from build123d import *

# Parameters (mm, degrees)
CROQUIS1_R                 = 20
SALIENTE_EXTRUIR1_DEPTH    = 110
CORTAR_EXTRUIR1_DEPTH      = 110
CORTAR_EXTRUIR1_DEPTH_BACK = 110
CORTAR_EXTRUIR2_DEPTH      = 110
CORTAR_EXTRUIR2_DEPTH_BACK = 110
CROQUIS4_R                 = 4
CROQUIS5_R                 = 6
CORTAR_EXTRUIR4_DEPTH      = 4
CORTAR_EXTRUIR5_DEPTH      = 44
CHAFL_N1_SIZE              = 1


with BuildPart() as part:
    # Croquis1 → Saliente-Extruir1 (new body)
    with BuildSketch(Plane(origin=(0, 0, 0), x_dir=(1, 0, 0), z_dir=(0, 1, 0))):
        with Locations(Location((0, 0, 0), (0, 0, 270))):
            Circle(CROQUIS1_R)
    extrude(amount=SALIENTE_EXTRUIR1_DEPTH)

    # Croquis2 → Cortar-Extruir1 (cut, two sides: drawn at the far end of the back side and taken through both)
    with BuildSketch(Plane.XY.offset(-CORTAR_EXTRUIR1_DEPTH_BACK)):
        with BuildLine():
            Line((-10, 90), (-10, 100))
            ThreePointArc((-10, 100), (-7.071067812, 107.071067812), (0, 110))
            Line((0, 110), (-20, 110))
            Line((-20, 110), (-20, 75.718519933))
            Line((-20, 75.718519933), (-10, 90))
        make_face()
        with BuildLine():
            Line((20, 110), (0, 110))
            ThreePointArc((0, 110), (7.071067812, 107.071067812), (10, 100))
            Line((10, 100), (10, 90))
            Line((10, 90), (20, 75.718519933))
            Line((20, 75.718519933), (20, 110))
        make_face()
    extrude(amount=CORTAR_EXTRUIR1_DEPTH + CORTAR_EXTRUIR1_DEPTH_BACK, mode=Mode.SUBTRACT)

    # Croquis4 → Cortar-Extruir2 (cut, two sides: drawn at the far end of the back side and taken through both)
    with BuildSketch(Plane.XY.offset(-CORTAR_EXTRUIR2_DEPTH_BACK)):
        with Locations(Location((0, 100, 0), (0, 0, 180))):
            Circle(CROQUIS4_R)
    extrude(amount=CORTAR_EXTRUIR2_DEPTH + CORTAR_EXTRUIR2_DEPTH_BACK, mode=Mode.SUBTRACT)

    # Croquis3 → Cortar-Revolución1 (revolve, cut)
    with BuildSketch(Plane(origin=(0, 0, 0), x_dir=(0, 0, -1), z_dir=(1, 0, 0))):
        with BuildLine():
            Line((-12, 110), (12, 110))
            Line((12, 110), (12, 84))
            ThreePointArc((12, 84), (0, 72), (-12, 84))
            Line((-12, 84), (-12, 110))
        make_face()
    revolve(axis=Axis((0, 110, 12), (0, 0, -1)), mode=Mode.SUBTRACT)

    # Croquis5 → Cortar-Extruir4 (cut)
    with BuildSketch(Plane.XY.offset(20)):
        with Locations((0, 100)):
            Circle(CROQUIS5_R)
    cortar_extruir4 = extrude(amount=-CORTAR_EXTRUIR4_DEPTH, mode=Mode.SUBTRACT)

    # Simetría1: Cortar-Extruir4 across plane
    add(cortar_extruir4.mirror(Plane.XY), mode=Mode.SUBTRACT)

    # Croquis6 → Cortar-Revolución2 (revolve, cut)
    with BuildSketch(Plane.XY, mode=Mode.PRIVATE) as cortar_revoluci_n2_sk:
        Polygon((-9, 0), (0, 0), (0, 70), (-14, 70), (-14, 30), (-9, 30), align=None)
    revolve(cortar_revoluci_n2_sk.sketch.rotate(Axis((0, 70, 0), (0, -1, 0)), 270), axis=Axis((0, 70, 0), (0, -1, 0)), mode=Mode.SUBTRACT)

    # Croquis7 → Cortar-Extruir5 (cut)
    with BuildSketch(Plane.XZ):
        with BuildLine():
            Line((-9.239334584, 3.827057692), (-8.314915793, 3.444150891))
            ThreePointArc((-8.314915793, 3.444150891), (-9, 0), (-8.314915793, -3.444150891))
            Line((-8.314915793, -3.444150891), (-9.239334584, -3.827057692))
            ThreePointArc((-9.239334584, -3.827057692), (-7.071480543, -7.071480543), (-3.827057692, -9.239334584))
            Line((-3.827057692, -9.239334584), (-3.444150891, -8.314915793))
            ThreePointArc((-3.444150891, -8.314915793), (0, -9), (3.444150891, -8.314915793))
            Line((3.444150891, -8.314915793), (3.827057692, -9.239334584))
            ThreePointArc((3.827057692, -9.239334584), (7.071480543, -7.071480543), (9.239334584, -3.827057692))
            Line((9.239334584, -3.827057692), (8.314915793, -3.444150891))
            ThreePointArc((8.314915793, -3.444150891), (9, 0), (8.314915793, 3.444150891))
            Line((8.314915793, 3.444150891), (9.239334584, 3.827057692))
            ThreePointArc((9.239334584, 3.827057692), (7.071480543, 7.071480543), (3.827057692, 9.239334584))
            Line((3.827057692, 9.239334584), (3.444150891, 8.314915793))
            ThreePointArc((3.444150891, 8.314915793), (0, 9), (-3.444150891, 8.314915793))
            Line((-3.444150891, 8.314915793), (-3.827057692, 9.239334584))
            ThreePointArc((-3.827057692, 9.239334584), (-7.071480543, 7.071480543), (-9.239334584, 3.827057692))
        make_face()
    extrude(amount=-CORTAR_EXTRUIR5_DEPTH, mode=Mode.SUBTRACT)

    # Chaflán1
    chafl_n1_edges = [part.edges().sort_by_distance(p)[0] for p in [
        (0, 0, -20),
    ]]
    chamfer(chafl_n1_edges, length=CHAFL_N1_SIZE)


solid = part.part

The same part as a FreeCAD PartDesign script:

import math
import FreeCAD as App
import Part
import Sketcher
Q = App.Units.Quantity


def edges_at(feature, points):
    """Names of the edges that pass closest to the given points."""
    edges = feature.Shape.Edges
    near = lambda p: min(range(len(edges)), key=lambda i: edges[i].distToShape(Part.Vertex(*p))[0])
    return sorted({f"Edge{near(p) + 1}" for p in points})


def add_polygon(sketch, points):
    """Adds a closed chain of lines whose ends are joined by coincident constraints."""
    first, n = sketch.GeometryCount, len(points)
    for a, b in zip(points, points[1:] + points[:1]):
        sketch.addGeometry(Part.LineSegment(App.Vector(*a, 0), App.Vector(*b, 0)), False)
    for i in range(n):
        sketch.addConstraint(Sketcher.Constraint("Coincident", first + i, 2, first + (i + 1) % n, 1))

doc = App.newDocument("Part")
body = doc.addObject("PartDesign::Body", "Body")

# Sketch on XZ plane
sketch1 = body.newObject("Sketcher::SketchObject", "Sketch")
sketch1.AttachmentSupport = (doc.getObject("XZ_Plane"), [""])
sketch1.MapMode = "FlatFace"
sketch1.addGeometry(Part.Circle(App.Vector(0, 0, 0), App.Vector(0, 0, 1), 20), False)
sketch1.addConstraint([
    Sketcher.Constraint("Coincident", 0, 3, -1, 1),
    Sketcher.Constraint("Diameter", 0, 40.0),
])
pad1 = body.newObject("PartDesign::Pad", "Pad")
pad1.Profile = sketch1
pad1.Length = 110
pad1.Reversed = True

# Sketch on XY plane
sketch2 = body.newObject("Sketcher::SketchObject", "Sketch001")
sketch2.AttachmentSupport = (doc.getObject("XY_Plane"), [""])
sketch2.MapMode = "FlatFace"
sketch2.addGeometry([
    Part.LineSegment(App.Vector(-10, 90, 0), App.Vector(-10, 100, 0)),  # 0
    Part.ArcOfCircle(Part.Circle(App.Vector(0, 100, 0), App.Vector(0, 0, 1), 10), math.radians(90), math.radians(180)),  # 1
    Part.LineSegment(App.Vector(0, 110, 0), App.Vector(-20, 110, 0)),  # 2
    Part.LineSegment(App.Vector(-20, 110, 0), App.Vector(-20, 76, 0)),  # 3
    Part.LineSegment(App.Vector(-20, 76, 0), App.Vector(-10, 90, 0)),  # 4
    Part.LineSegment(App.Vector(20, 110, 0), App.Vector(0, 110, 0)),  # 5
    Part.ArcOfCircle(Part.Circle(App.Vector(0, 100, 0), App.Vector(0, 0, 1), 10), math.radians(0), math.radians(90)),  # 6
    Part.LineSegment(App.Vector(10, 100, 0), App.Vector(10, 90, 0)),  # 7
    Part.LineSegment(App.Vector(10, 90, 0), App.Vector(20, 76, 0)),  # 8
    Part.LineSegment(App.Vector(20, 76, 0), App.Vector(20, 110, 0)),  # 9
], False)
sketch2.addConstraint([
    Sketcher.Constraint("Tangent", 0, 2, 1, 2),
    Sketcher.Constraint("Tangent", 1, 1, 2, 1),
    Sketcher.Constraint("Coincident", 2, 2, 3, 1),
    Sketcher.Constraint("Coincident", 3, 2, 4, 1),
    Sketcher.Constraint("Coincident", 4, 2, 0, 1),
    Sketcher.Constraint("Tangent", 5, 2, 6, 2),
    Sketcher.Constraint("Tangent", 6, 1, 7, 1),
    Sketcher.Constraint("Coincident", 7, 2, 8, 1),
    Sketcher.Constraint("Coincident", 8, 2, 9, 1),
    Sketcher.Constraint("Coincident", 9, 2, 5, 1),
    Sketcher.Constraint("Vertical", 0),
    Sketcher.Constraint("Horizontal", 2),
    Sketcher.Constraint("Vertical", 3),
    Sketcher.Constraint("Horizontal", 5),
    Sketcher.Constraint("Vertical", 7),
    Sketcher.Constraint("Vertical", 9),
    Sketcher.Constraint("Coincident", 6, 3, 1, 3),
    Sketcher.Constraint("Equal", 1, 6),
    Sketcher.Constraint("Symmetric", 4, 2, 7, 2, -2),
    Sketcher.Constraint("Symmetric", 3, 2, 8, 2, -2),
    Sketcher.Constraint("Radius", 1, 10.0),
    Sketcher.Constraint("DistanceX", 2, 2, 2, 1, 20.0),
    Sketcher.Constraint("DistanceY", 0, 1, 0, 2, 10.0),
    Sketcher.Constraint("Angle", 4, Q("55 deg")),
    Sketcher.Constraint("DistanceY", -1, 1, 1, 3, 100.0),
])
pocket1 = body.newObject("PartDesign::Pocket", "Pocket")
pocket1.Profile = sketch2
pocket1.Type = "ThroughAll"
pocket1.Midplane = True

# Sketch on XY plane
sketch3 = body.newObject("Sketcher::SketchObject", "Sketch002")
sketch3.AttachmentSupport = (doc.getObject("XY_Plane"), [""])
sketch3.MapMode = "FlatFace"
sketch3.addGeometry(Part.Circle(App.Vector(0, 100, 0), App.Vector(0, 0, 1), 4), False)
sketch3.addConstraint([
    Sketcher.Constraint("PointOnObject", 0, 3, -2),
    Sketcher.Constraint("Diameter", 0, 8.0),
    Sketcher.Constraint("DistanceY", -1, 1, 0, 3, 100.0),
])
pocket2 = body.newObject("PartDesign::Pocket", "Pocket001")
pocket2.Profile = sketch3
pocket2.Type = "ThroughAll"
pocket2.Midplane = True

# Sketch on YZ plane
sketch4 = body.newObject("Sketcher::SketchObject", "Sketch003")
sketch4.AttachmentSupport = (doc.getObject("YZ_Plane"), [""])
sketch4.MapMode = "FlatFace"
sketch4.addGeometry([
    Part.LineSegment(App.Vector(110, -12, 0), App.Vector(110, 12, 0)),
    Part.LineSegment(App.Vector(110, 12, 0), App.Vector(84, 12, 0)),
    Part.ArcOfCircle(Part.Circle(App.Vector(84, 0, 0), App.Vector(0, 0, 1), 12), math.radians(90), math.radians(270)),
    Part.LineSegment(App.Vector(84, -12, 0), App.Vector(110, -12, 0)),
], False)
sketch4.addGeometry(Part.LineSegment(App.Vector(110, 12, 0), App.Vector(110, -12, 0)), True)  # axis
sketch4.addConstraint([
    Sketcher.Constraint("Coincident", 0, 2, 1, 1),
    Sketcher.Constraint("Tangent", 1, 2, 2, 1),
    Sketcher.Constraint("Tangent", 2, 2, 3, 1),
    Sketcher.Constraint("Coincident", 3, 2, 0, 1),
    Sketcher.Constraint("Vertical", 0),
    Sketcher.Constraint("Horizontal", 1),
    Sketcher.Constraint("Horizontal", 3),
    Sketcher.Constraint("Vertical", 4),
    Sketcher.Constraint("Coincident", 4, 1, 0, 2),
    Sketcher.Constraint("PointOnObject", 2, 3, -1),
    Sketcher.Constraint("Horizontal", 2, 2, 4, 2),
    Sketcher.Constraint("Radius", 2, 12.0),
    Sketcher.Constraint("DistanceX", 1, 2, 1, 1, 26.0),
    Sketcher.Constraint("DistanceX", -1, 1, 2, 3, 84.0),
])
groove = body.newObject("PartDesign::Groove", "Groove")
groove.Profile = sketch4
groove.ReferenceAxis = (sketch4, ["Axis0"])
groove.Angle = 360

# Sketch on XY plane
sketch5 = body.newObject("Sketcher::SketchObject", "Sketch004")
sketch5.AttachmentSupport = (doc.getObject("XY_Plane"), [""])
sketch5.MapMode = "FlatFace"
sketch5.AttachmentOffset = App.Placement(App.Vector(0, 0, 20), App.Rotation())
sketch5.addGeometry(Part.Circle(App.Vector(0, 100, 0), App.Vector(0, 0, 1), 6), False)
sketch5.addConstraint([
    Sketcher.Constraint("PointOnObject", 0, 3, -2),
    Sketcher.Constraint("Diameter", 0, 12.0),
    Sketcher.Constraint("DistanceY", -1, 1, 0, 3, 100.0),
])
pocket3 = body.newObject("PartDesign::Pocket", "Pocket002")
pocket3.Profile = sketch5
pocket3.Length = 4
doc.recompute()

mirrored = body.newObject("PartDesign::Mirrored", "Mirrored")
mirrored.Originals = [pocket3]
mirrored.MirrorPlane = (doc.getObject("XY_Plane"), [""])
body.Tip = mirrored

# Sketch on XY plane
sketch6 = body.newObject("Sketcher::SketchObject", "Sketch005")
sketch6.AttachmentSupport = (doc.getObject("XY_Plane"), [""])
sketch6.MapMode = "FlatFace"
add_polygon(sketch6, [(-9, 0), (0, 0), (0, 70), (-14, 70), (-14, 30), (-9, 30)])  # lines 0-5
sketch6.addConstraint([
    Sketcher.Constraint("Horizontal", 0),
    Sketcher.Constraint("Vertical", 1),
    Sketcher.Constraint("Horizontal", 2),
    Sketcher.Constraint("Vertical", 3),
    Sketcher.Constraint("Horizontal", 4),
    Sketcher.Constraint("Vertical", 5),
    Sketcher.Constraint("Coincident", 0, 2, -1, 1),
    Sketcher.Constraint("DistanceX", 0, 1, 0, 2, 9.0),
    Sketcher.Constraint("DistanceX", 2, 2, 2, 1, 14.0),
    Sketcher.Constraint("DistanceY", 1, 1, 1, 2, 70.0),
    Sketcher.Constraint("DistanceY", 3, 2, 3, 1, 40.0),
])
groove2 = body.newObject("PartDesign::Groove", "Groove001")
groove2.Profile = sketch6
groove2.ReferenceAxis = (sketch6, ["V_Axis"])
groove2.Angle = 360

# Sketch on XZ plane
sketch7 = body.newObject("Sketcher::SketchObject", "Sketch006")
sketch7.AttachmentSupport = (doc.getObject("XZ_Plane"), [""])
sketch7.MapMode = "FlatFace"
sketch7.addGeometry([
    Part.LineSegment(App.Vector(-9.2, 3.8, 0), App.Vector(-8.3, 3.4, 0)),  # 0
    Part.ArcOfCircle(Part.Circle(App.Vector(0, 0, 0), App.Vector(0, 0, 1), 9), math.radians(158), math.radians(202)),  # 1
    Part.LineSegment(App.Vector(-8.3, -3.4, 0), App.Vector(-9.2, -3.8, 0)),  # 2
    Part.ArcOfCircle(Part.Circle(App.Vector(0, 0, 0), App.Vector(0, 0, 1), 10), math.radians(-158), math.radians(-112)),  # 3
    Part.LineSegment(App.Vector(-3.8, -9.2, 0), App.Vector(-3.4, -8.3, 0)),  # 4
    Part.ArcOfCircle(Part.Circle(App.Vector(0, 0, 0), App.Vector(0, 0, 1), 9), math.radians(-112), math.radians(-68)),  # 5
    Part.LineSegment(App.Vector(3.4, -8.3, 0), App.Vector(3.8, -9.2, 0)),  # 6
    Part.ArcOfCircle(Part.Circle(App.Vector(0, 0, 0), App.Vector(0, 0, 1), 10), math.radians(-68), math.radians(-22)),  # 7
    Part.LineSegment(App.Vector(9.2, -3.8, 0), App.Vector(8.3, -3.4, 0)),  # 8
    Part.ArcOfCircle(Part.Circle(App.Vector(0, 0, 0), App.Vector(0, 0, 1), 9), math.radians(-22), math.radians(22)),  # 9
    Part.LineSegment(App.Vector(8.3, 3.4, 0), App.Vector(9.2, 3.8, 0)),  # 10
    Part.ArcOfCircle(Part.Circle(App.Vector(0, 0, 0), App.Vector(0, 0, 1), 10), math.radians(22), math.radians(68)),  # 11
    Part.LineSegment(App.Vector(3.8, 9.2, 0), App.Vector(3.4, 8.3, 0)),  # 12
    Part.ArcOfCircle(Part.Circle(App.Vector(0, 0, 0), App.Vector(0, 0, 1), 9), math.radians(68), math.radians(112)),  # 13
    Part.LineSegment(App.Vector(-3.4, 8.3, 0), App.Vector(-3.8, 9.2, 0)),  # 14
    Part.ArcOfCircle(Part.Circle(App.Vector(0, 0, 0), App.Vector(0, 0, 1), 10), math.radians(112), math.radians(158)),  # 15
], False)
sketch7.addConstraint([
    Sketcher.Constraint("Coincident", 0, 2, 1, 1),
    Sketcher.Constraint("Coincident", 1, 2, 2, 1),
    Sketcher.Constraint("Coincident", 2, 2, 3, 1),
    Sketcher.Constraint("Coincident", 3, 2, 4, 1),
    Sketcher.Constraint("Coincident", 4, 2, 5, 1),
    Sketcher.Constraint("Coincident", 5, 2, 6, 1),
    Sketcher.Constraint("Coincident", 6, 2, 7, 1),
    Sketcher.Constraint("Coincident", 7, 2, 8, 1),
    Sketcher.Constraint("Coincident", 8, 2, 9, 1),
    Sketcher.Constraint("Coincident", 9, 2, 10, 1),
    Sketcher.Constraint("Coincident", 10, 2, 11, 1),
    Sketcher.Constraint("Coincident", 11, 2, 12, 1),
    Sketcher.Constraint("Coincident", 12, 2, 13, 1),
    Sketcher.Constraint("Coincident", 13, 2, 14, 1),
    Sketcher.Constraint("Coincident", 14, 2, 15, 1),
    Sketcher.Constraint("Coincident", 15, 2, 0, 1),
    Sketcher.Constraint("Coincident", 1, 3, -1, 1),
    Sketcher.Constraint("Coincident", 3, 3, -1, 1),
    Sketcher.Constraint("Coincident", 5, 3, -1, 1),
    Sketcher.Constraint("Coincident", 7, 3, -1, 1),
    Sketcher.Constraint("Coincident", 9, 3, -1, 1),
    Sketcher.Constraint("Coincident", 11, 3, -1, 1),
    Sketcher.Constraint("Coincident", 13, 3, -1, 1),
    Sketcher.Constraint("Coincident", 15, 3, -1, 1),
    Sketcher.Constraint("Equal", 1, 5),
    Sketcher.Constraint("Equal", 3, 7),
    Sketcher.Constraint("Equal", 5, 9),
    Sketcher.Constraint("Equal", 7, 11),
    Sketcher.Constraint("Equal", 9, 13),
    Sketcher.Constraint("Equal", 11, 15),
    Sketcher.Constraint("Perpendicular", 0, 4),
    Sketcher.Constraint("Perpendicular", 2, 6),
    Sketcher.Constraint("Perpendicular", 4, 8),
    Sketcher.Constraint("Perpendicular", 6, 10),
    Sketcher.Constraint("Perpendicular", 8, 12),
    Sketcher.Constraint("Perpendicular", 10, 14),
    Sketcher.Constraint("Horizontal", 4, 2, 5, 2),
    Sketcher.Constraint("Horizontal", 3, 2, 6, 2),
    Sketcher.Constraint("Horizontal", 2, 2, 7, 2),
    Sketcher.Constraint("Horizontal", 0, 2, 9, 2),
    Sketcher.Constraint("Horizontal", 12, 2, 13, 2),
    Sketcher.Constraint("Vertical", 0, 2, 1, 2),
    Sketcher.Constraint("Vertical", 6, 2, 11, 2),
    Sketcher.Constraint("Radius", 1, 9.0),
    Sketcher.Constraint("Angle", 0, Q("-22.5 deg")),
    Sketcher.Constraint("Radius", 3, 10.000584),
    Sketcher.Constraint("DistanceY", 1, 2, 0, 2, 6.888302),
    Sketcher.Constraint("DistanceX", 4, 2, 5, 2, 6.888302),
])
pocket4 = body.newObject("PartDesign::Pocket", "Pocket003")
pocket4.Profile = sketch7
pocket4.Length = 44
doc.recompute()

chamfer = body.newObject("PartDesign::Chamfer", "Chamfer")
chamfer.Base = (pocket4, edges_at(pocket4, [(0, 0, -20)]))
chamfer.Size = 1

doc.recompute()
